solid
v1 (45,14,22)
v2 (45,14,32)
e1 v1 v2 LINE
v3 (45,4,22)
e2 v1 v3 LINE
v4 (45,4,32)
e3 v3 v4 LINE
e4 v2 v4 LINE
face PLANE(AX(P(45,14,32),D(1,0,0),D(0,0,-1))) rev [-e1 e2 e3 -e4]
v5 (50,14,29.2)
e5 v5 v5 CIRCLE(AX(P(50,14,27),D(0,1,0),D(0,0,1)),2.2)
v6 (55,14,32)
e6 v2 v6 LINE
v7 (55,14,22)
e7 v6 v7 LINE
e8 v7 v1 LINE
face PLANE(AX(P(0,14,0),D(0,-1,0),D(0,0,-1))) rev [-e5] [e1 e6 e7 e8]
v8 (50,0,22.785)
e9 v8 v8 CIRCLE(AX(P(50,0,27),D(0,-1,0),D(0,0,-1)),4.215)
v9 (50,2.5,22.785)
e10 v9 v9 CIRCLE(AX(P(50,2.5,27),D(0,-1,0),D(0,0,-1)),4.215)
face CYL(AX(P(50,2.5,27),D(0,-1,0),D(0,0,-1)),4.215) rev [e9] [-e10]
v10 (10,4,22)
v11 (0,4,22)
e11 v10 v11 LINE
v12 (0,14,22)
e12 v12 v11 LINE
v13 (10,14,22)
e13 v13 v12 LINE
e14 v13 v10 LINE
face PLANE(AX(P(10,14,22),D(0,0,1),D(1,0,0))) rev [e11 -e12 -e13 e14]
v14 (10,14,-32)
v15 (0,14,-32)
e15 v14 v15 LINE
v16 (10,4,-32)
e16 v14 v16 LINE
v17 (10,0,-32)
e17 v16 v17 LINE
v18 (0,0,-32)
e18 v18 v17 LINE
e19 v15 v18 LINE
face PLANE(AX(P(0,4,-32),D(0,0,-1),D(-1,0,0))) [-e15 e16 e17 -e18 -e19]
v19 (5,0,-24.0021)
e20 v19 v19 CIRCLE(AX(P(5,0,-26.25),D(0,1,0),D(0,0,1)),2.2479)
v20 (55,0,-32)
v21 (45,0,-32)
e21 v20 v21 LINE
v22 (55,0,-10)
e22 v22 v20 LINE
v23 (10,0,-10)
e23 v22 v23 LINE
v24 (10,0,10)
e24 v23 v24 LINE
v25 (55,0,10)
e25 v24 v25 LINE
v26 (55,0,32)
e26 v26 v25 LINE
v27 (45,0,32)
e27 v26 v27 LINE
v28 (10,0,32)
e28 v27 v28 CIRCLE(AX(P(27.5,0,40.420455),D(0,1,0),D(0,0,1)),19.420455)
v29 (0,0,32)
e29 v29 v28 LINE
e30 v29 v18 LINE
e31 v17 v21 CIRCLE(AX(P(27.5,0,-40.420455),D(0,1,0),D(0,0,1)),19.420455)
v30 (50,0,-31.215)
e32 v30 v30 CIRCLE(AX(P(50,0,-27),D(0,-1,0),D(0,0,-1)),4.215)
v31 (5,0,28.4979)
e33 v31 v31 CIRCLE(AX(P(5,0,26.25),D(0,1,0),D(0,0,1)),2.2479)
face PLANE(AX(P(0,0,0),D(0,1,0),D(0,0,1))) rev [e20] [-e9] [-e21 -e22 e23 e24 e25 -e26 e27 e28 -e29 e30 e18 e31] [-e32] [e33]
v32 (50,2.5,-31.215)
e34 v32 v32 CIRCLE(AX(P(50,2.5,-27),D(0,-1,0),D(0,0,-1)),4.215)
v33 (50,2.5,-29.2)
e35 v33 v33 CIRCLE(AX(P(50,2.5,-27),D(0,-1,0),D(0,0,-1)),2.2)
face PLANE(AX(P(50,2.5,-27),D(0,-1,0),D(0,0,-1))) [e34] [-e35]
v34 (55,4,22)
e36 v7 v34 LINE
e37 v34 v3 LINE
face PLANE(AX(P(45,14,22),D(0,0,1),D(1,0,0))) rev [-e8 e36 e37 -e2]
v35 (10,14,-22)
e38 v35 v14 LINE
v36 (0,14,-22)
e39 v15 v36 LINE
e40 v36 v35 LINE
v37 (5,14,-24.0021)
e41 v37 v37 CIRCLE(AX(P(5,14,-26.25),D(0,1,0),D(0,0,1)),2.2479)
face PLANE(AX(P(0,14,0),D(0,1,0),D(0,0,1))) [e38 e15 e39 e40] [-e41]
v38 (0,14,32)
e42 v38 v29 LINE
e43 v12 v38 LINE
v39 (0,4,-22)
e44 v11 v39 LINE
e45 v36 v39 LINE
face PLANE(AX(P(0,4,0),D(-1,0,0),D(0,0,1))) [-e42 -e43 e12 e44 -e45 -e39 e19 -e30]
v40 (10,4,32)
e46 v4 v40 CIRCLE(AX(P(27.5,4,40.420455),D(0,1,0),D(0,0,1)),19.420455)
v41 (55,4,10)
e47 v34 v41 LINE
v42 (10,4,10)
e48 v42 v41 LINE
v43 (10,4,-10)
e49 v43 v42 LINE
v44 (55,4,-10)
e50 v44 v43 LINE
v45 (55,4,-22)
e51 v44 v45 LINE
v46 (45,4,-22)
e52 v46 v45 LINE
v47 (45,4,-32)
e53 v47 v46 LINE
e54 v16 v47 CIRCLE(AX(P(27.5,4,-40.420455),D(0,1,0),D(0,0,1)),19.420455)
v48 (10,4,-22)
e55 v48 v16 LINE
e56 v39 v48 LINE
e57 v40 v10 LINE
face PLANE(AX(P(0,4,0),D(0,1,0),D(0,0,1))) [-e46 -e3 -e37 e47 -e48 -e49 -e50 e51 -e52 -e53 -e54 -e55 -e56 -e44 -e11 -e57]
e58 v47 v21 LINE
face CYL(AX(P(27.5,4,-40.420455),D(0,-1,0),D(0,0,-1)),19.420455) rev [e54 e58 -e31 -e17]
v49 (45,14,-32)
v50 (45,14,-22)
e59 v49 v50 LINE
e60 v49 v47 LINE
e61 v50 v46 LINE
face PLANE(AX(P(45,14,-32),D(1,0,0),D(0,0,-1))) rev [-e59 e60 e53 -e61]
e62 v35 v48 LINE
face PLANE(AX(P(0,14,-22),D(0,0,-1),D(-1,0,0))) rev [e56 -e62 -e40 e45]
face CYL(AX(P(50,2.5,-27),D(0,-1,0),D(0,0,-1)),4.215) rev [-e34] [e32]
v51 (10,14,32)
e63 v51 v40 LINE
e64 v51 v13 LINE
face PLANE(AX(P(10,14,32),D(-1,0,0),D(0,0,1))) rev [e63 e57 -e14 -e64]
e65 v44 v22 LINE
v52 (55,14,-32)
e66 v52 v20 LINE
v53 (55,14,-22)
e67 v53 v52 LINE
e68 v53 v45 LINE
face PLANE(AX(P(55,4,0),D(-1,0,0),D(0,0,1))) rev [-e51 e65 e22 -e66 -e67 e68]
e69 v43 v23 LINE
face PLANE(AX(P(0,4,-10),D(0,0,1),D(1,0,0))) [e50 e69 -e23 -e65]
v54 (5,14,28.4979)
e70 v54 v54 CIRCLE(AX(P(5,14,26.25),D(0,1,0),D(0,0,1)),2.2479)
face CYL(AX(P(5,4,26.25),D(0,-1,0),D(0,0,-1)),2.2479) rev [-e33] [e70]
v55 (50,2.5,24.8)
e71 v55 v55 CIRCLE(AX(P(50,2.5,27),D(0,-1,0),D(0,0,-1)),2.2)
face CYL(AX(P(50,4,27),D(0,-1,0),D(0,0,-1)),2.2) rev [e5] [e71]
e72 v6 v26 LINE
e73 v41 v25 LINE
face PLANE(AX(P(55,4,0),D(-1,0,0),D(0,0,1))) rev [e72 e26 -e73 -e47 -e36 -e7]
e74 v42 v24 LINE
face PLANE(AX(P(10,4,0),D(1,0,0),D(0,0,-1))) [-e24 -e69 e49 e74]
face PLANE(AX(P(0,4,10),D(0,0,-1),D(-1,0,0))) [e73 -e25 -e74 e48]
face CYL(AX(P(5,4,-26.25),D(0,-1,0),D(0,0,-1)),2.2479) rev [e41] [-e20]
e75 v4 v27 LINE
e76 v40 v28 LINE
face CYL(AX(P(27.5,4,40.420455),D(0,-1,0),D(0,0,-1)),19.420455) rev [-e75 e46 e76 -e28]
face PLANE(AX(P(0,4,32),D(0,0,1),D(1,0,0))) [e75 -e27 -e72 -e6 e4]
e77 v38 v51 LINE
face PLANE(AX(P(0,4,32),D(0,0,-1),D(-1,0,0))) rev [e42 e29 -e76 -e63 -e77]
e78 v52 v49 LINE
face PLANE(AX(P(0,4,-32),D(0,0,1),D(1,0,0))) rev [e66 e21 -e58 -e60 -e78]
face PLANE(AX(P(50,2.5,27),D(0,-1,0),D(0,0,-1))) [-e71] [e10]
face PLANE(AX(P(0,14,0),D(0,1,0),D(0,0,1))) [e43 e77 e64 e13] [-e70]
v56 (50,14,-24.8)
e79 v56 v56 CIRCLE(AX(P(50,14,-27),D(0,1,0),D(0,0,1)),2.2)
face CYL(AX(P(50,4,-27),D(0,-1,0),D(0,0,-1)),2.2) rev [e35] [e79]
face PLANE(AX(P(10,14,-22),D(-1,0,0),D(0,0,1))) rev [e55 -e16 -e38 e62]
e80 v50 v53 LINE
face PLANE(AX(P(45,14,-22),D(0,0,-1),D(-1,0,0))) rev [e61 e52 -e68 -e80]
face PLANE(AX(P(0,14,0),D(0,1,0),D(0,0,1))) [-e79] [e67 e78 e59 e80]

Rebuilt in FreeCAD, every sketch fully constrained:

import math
import FreeCAD as App
import Part
import Sketcher
from FreeCAD import Vector


def add_polygon(sketch, points):
    """Adds a closed chain of lines whose ends are joined by coincident constraints."""
    first, n = sketch.GeometryCount, len(points)
    for a, b in zip(points, points[1:] + points[:1]):
        sketch.addGeometry(Part.LineSegment(App.Vector(*a, 0), App.Vector(*b, 0)), False)
    for i in range(n):
        sketch.addConstraint(Sketcher.Constraint("Coincident", first + i, 2, first + (i + 1) % n, 1))

doc = App.newDocument("Part")
body = doc.addObject("PartDesign::Body", "Body")

sketch1 = body.newObject("Sketcher::SketchObject", "Sketch")
sketch1.AttachmentSupport = (doc.getObject("XZ_Plane"), [""])
sketch1.MapMode = "FlatFace"
sketch1.addGeometry([
    Part.LineSegment(Vector(10, 10, 0), Vector(10, -10, 0)),
    Part.LineSegment(Vector(10, -10, 0), Vector(55, -10, 0)),
    Part.LineSegment(Vector(55, -10, 0), Vector(55, -32, 0)),
    Part.LineSegment(Vector(55, -32, 0), Vector(45, -32, 0)),
    Part.ArcOfCircle(Part.Circle(Vector(27.5, -40.4, 0), Vector(0, 0, 1), 19.4), math.radians(26), math.radians(154)),
    Part.LineSegment(Vector(10, -32, 0), Vector(0, -32, 0)),
    Part.LineSegment(Vector(0, -32, 0), Vector(0, 32, 0)),
    Part.LineSegment(Vector(0, 32, 0), Vector(10, 32, 0)),
    Part.ArcOfCircle(Part.Circle(Vector(27.5, 40.4, 0), Vector(0, 0, 1), 19.4), math.radians(-154), math.radians(-26)),
    Part.LineSegment(Vector(45, 32, 0), Vector(55, 32, 0)),
    Part.LineSegment(Vector(55, 32, 0), Vector(55, 10, 0)),
    Part.LineSegment(Vector(55, 10, 0), Vector(10, 10, 0)),
    Part.Circle(Vector(5, 26.2, 0), Vector(0, 0, 1), 2.2),
    Part.Circle(Vector(50, 27, 0), Vector(0, 0, 1), 2.2),
    Part.Circle(Vector(5, -26.2, 0), Vector(0, 0, 1), 2.2),
    Part.Circle(Vector(50, -27, 0), Vector(0, 0, 1), 2.2),
], False)
sketch1.addConstraint([
    Sketcher.Constraint("Coincident", 0, 2, 1, 1),
    Sketcher.Constraint("Coincident", 1, 2, 2, 1),
    Sketcher.Constraint("Coincident", 2, 2, 3, 1),
    Sketcher.Constraint("Coincident", 3, 2, 4, 1),
    Sketcher.Constraint("Coincident", 4, 2, 5, 1),
    Sketcher.Constraint("Coincident", 5, 2, 6, 1),
    Sketcher.Constraint("Coincident", 6, 2, 7, 1),
    Sketcher.Constraint("Coincident", 7, 2, 8, 1),
    Sketcher.Constraint("Coincident", 8, 2, 9, 1),
    Sketcher.Constraint("Coincident", 9, 2, 10, 1),
    Sketcher.Constraint("Coincident", 10, 2, 11, 1),
    Sketcher.Constraint("Coincident", 11, 2, 0, 1),
    Sketcher.Constraint("Vertical", 0),
    Sketcher.Constraint("Horizontal", 1),
    Sketcher.Constraint("Vertical", 2),
    Sketcher.Constraint("Horizontal", 3),
    Sketcher.Constraint("Horizontal", 5),
    Sketcher.Constraint("Vertical", 6),
    Sketcher.Constraint("Horizontal", 7),
    Sketcher.Constraint("Horizontal", 9),
    Sketcher.Constraint("Vertical", 10),
    Sketcher.Constraint("Horizontal", 11),
    Sketcher.Constraint("Equal", 4, 8),
    Sketcher.Constraint("Equal", 12, 14),
    Sketcher.Constraint("Equal", 13, 15),
    Sketcher.Constraint("Symmetric", 5, 2, 6, 2, -1, 1),
    Sketcher.Constraint("Symmetric", 4, 3, 8, 3, -1),
    Sketcher.Constraint("Symmetric", 12, 3, 14, 3, -1),
    Sketcher.Constraint("Symmetric", 13, 3, 15, 3, -1),
    Sketcher.Constraint("Symmetric", 2, 2, 9, 2, -1),
    Sketcher.Constraint("Horizontal", 3, 2, 4, 2),
    Sketcher.Constraint("Vertical", 0, 2, 4, 2),
    Sketcher.Constraint("Equal", 3, 5),
    Sketcher.Constraint("Equal", 2, 10),
    Sketcher.Constraint("Diameter", 13, 4.4),
    Sketcher.Constraint("DistanceX", 1, 1, 1, 2, 45.0),
    Sketcher.Constraint("DistanceX", 3, 2, 3, 1, 10.0),
    Sketcher.Constraint("DistanceY", 0, 2, 0, 1, 20.0),
    Sketcher.Constraint("DistanceY", 2, 2, 2, 1, 22.0),
    Sketcher.Constraint("DistanceX", -1, 1, 12, 3, 5.0),
    Sketcher.Constraint("DistanceX", -1, 1, 13, 3, 50.0),
    Sketcher.Constraint("DistanceY", -1, 1, 13, 3, 27.0),
    Sketcher.Constraint("Diameter", 12, 4.4958),
    Sketcher.Constraint("DistanceY", 14, 3, 12, 3, 52.5),
    Sketcher.Constraint("Radius", 4, 19.420455),
])
pad1 = body.newObject("PartDesign::Pad", "Pad")
pad1.Profile = sketch1
pad1.Length = 4
pad1.Reversed = True

sketch2 = body.newObject("Sketcher::SketchObject", "Sketch001")
sketch2.AttachmentSupport = (doc.getObject("XZ_Plane"), [""])
sketch2.MapMode = "FlatFace"
sketch2.AttachmentOffset = App.Placement(Vector(0, 0, -4), App.Rotation())
add_polygon(sketch2, [(45, 22), (45, 32), (55, 32), (55, 22)])
sketch2.addGeometry(Part.Circle(Vector(50, 27, 0), Vector(0, 0, 1), 2.2), False)
add_polygon(sketch2, [(45, -32), (45, -22), (55, -22), (55, -32)])
sketch2.addGeometry(Part.Circle(Vector(50, -27, 0), Vector(0, 0, 1), 2.2), False)
add_polygon(sketch2, [(0, -32), (0, -22), (10, -22), (10, -32)])
sketch2.addGeometry(Part.Circle(Vector(5, -26.2, 0), Vector(0, 0, 1), 2.2), False)
add_polygon(sketch2, [(0, 22), (0, 32), (10, 32), (10, 22)])
sketch2.addGeometry(Part.Circle(Vector(5, 26.2, 0), Vector(0, 0, 1), 2.2), False)
sketch2.addConstraint([
    Sketcher.Constraint("Vertical", 0),
    Sketcher.Constraint("Horizontal", 1),
    Sketcher.Constraint("Vertical", 2),
    Sketcher.Constraint("Horizontal", 3),
    Sketcher.Constraint("Vertical", 5),
    Sketcher.Constraint("Horizontal", 6),
    Sketcher.Constraint("Vertical", 7),
    Sketcher.Constraint("Horizontal", 8),
    Sketcher.Constraint("Vertical", 10),
    Sketcher.Constraint("Horizontal", 11),
    Sketcher.Constraint("Vertical", 12),
    Sketcher.Constraint("Horizontal", 13),
    Sketcher.Constraint("Vertical", 15),
    Sketcher.Constraint("Horizontal", 16),
    Sketcher.Constraint("Vertical", 17),
    Sketcher.Constraint("Horizontal", 18),
    Sketcher.Constraint("Equal", 4, 9),
    Sketcher.Constraint("Equal", 14, 19),
    Sketcher.Constraint("Symmetric", 13, 2, 15, 2, -1, 1),
    Sketcher.Constraint("Symmetric", 4, 3, 9, 3, -1),
    Sketcher.Constraint("Symmetric", 14, 3, 19, 3, -1),
    Sketcher.Constraint("Symmetric", 3, 2, 5, 2, -1),
    Sketcher.Constraint("Symmetric", 1, 2, 7, 2, -1),
    Sketcher.Constraint("Symmetric", 11, 2, 17, 2, -1),
    Sketcher.Constraint("PointOnObject", 10, 2, -2),
    Sketcher.Constraint("Horizontal", 6, 2, 10, 2),
    Sketcher.Constraint("Horizontal", 8, 2, 12, 2),
    Sketcher.Constraint("Equal", 8, 11),
    Sketcher.Constraint("Equal", 18, 0),
    Sketcher.Constraint("Diameter", 4, 4.4),
    Sketcher.Constraint("DistanceX", 1, 1, 1, 2, 10.0),
    Sketcher.Constraint("DistanceX", -1, 1, 4, 3, 50.0),
    Sketcher.Constraint("DistanceY", -1, 1, 4, 3, 27.0),
    Sketcher.Constraint("DistanceX", -1, 1, 14, 3, 5.0),
    Sketcher.Constraint("DistanceX", -1, 1, 0, 2, 45.0),
    Sketcher.Constraint("DistanceY", -1, 1, 0, 2, 32.0),
    Sketcher.Constraint("Diameter", 14, 4.4958),
    Sketcher.Constraint("DistanceY", 14, 3, 19, 3, 52.5),
])
pad2 = body.newObject("PartDesign::Pad", "Pad001")
pad2.Profile = sketch2
pad2.Length = 10
pad2.Reversed = True

sketch3 = body.newObject("Sketcher::SketchObject", "Sketch002")
sketch3.AttachmentSupport = (doc.getObject("XZ_Plane"), [""])
sketch3.MapMode = "FlatFace"
sketch3.addGeometry([
    Part.Circle(Vector(50, 27, 0), Vector(0, 0, 1), 4.2),
    Part.Circle(Vector(50, -27, 0), Vector(0, 0, 1), 4.2),
], False)
sketch3.addConstraint([
    Sketcher.Constraint("Equal", 0, 1),
    Sketcher.Constraint("Symmetric", 0, 3, 1, 3, -1),
    Sketcher.Constraint("Diameter", 0, 8.43),
    Sketcher.Constraint("DistanceX", -1, 1, 0, 3, 50.0),
    Sketcher.Constraint("DistanceY", -1, 1, 0, 3, 27.0),
])
pocket1 = body.newObject("PartDesign::Pocket", "Pocket")
pocket1.Profile = sketch3
pocket1.Length = 2.5

doc.recompute()
